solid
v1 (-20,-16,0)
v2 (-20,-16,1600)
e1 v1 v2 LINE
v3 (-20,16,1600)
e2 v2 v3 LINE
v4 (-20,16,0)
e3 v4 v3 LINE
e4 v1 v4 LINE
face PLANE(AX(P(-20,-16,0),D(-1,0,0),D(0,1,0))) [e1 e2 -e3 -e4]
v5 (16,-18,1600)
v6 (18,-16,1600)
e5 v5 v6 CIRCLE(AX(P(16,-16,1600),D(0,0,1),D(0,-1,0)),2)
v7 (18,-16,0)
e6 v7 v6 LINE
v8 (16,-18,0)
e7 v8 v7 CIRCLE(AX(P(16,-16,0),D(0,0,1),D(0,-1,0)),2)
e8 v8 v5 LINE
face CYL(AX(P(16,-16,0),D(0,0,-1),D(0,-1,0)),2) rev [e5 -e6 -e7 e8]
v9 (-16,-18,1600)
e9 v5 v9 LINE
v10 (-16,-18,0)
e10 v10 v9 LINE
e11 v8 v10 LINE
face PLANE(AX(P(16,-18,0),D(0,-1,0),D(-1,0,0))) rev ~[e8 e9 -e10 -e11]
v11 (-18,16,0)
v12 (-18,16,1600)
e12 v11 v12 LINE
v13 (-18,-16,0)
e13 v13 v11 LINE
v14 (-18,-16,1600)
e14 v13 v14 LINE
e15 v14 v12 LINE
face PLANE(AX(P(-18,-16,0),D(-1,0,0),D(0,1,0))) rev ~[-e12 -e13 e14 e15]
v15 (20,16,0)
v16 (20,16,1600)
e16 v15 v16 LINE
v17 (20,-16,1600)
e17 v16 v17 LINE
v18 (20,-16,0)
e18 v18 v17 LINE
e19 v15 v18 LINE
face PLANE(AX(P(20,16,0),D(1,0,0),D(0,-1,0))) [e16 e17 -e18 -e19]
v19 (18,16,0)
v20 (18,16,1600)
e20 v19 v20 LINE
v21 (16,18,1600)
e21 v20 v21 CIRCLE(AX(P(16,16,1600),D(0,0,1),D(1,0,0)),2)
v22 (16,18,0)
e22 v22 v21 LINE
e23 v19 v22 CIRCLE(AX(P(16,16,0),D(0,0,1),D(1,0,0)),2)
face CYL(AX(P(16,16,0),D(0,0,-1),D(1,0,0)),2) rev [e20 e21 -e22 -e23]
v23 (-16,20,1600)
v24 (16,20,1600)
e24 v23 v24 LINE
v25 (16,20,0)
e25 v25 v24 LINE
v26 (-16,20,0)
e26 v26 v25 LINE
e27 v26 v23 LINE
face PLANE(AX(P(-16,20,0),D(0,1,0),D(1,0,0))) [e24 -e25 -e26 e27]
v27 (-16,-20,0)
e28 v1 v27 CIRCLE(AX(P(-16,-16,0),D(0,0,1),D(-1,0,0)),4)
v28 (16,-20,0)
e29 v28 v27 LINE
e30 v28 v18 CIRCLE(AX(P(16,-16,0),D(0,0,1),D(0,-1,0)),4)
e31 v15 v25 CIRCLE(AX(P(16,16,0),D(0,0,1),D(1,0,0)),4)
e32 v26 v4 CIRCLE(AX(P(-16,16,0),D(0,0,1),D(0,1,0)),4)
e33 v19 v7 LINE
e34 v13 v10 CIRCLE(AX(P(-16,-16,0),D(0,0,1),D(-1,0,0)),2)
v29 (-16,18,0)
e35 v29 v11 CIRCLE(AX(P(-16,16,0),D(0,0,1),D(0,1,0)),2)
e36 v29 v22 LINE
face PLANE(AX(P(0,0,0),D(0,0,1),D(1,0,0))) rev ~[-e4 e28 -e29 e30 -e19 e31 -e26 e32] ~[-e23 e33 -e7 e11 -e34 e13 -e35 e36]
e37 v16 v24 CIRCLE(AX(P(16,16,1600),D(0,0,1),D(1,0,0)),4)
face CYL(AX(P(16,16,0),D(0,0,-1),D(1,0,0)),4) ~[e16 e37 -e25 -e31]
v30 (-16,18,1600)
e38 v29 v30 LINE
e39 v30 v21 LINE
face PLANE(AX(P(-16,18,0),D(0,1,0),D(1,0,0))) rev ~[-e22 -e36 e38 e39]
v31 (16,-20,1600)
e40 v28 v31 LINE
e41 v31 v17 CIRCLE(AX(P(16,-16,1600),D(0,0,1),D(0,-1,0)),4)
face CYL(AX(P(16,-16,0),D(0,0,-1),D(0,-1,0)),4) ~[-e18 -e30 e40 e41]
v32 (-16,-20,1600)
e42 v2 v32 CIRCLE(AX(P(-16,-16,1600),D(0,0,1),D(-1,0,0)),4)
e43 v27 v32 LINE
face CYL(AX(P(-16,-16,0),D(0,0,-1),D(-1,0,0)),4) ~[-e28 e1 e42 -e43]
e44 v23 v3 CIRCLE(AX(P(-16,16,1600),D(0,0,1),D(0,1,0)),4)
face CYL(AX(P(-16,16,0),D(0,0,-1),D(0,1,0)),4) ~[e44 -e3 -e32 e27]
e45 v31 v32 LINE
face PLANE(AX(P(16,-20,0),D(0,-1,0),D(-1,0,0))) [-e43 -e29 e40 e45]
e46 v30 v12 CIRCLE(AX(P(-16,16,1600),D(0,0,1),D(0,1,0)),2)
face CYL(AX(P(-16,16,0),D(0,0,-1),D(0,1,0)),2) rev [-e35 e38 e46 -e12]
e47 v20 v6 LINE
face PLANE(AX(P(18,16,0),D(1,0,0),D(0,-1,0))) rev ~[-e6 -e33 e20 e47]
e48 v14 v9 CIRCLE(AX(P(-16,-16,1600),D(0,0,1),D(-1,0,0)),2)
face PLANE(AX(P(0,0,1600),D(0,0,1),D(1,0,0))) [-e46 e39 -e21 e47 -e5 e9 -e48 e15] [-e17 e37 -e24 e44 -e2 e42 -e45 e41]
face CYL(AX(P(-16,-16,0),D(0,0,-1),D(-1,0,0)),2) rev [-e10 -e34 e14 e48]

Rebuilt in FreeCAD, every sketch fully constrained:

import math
import FreeCAD as App
import Part
import Sketcher

V = App.Vector

doc = App.newDocument("Part")
body = doc.addObject("PartDesign::Body", "Body")

sketch1 = doc.addObject("Sketcher::SketchObject", "Sketch")
body.addObject(sketch1)
sketch1.AttachmentSupport = (doc.XY_Plane, [""])
sketch1.MapMode = "FlatFace"
sketch1.addGeometry(Part.LineSegment(V(-20, 16, 0), V(-20, -16, 0)), False)
sketch1.addGeometry(Part.ArcOfCircle(Part.Circle(V(-16, -16, 0), V(0, 0, 1), 4), math.radians(180), math.radians(270)), False)
sketch1.addGeometry(Part.LineSegment(V(-16, -20, 0), V(16, -20, 0)), False)
sketch1.addGeometry(Part.ArcOfCircle(Part.Circle(V(16, -16, 0), V(0, 0, 1), 4), math.radians(-90), math.radians(0)), False)
sketch1.addGeometry(Part.LineSegment(V(20, -16, 0), V(20, 16, 0)), False)
sketch1.addGeometry(Part.ArcOfCircle(Part.Circle(V(16, 16, 0), V(0, 0, 1), 4), math.radians(0), math.radians(90)), False)
sketch1.addGeometry(Part.LineSegment(V(16, 20, 0), V(-16, 20, 0)), False)
sketch1.addGeometry(Part.ArcOfCircle(Part.Circle(V(-16, 16, 0), V(0, 0, 1), 4), math.radians(90), math.radians(180)), False)
sketch1.addGeometry(Part.ArcOfCircle(Part.Circle(V(-16, 16, 0), V(0, 0, 1), 2), math.radians(90), math.radians(180)), False)
sketch1.addGeometry(Part.LineSegment(V(-16, 18, 0), V(16, 18, 0)), False)
sketch1.addGeometry(Part.ArcOfCircle(Part.Circle(V(16, 16, 0), V(0, 0, 1), 2), math.radians(0), math.radians(90)), False)
sketch1.addGeometry(Part.LineSegment(V(18, 16, 0), V(18, -16, 0)), False)
sketch1.addGeometry(Part.ArcOfCircle(Part.Circle(V(16, -16, 0), V(0, 0, 1), 2), math.radians(-90), math.radians(0)), False)
sketch1.addGeometry(Part.LineSegment(V(16, -18, 0), V(-16, -18, 0)), False)
sketch1.addGeometry(Part.ArcOfCircle(Part.Circle(V(-16, -16, 0), V(0, 0, 1), 2), math.radians(180), math.radians(270)), False)
sketch1.addGeometry(Part.LineSegment(V(-18, -16, 0), V(-18, 16, 0)), False)
sketch1.addConstraint(Sketcher.Constraint("Tangent", 0, 2, 1, 1))
sketch1.addConstraint(Sketcher.Constraint("Tangent", 1, 2, 2, 1))
sketch1.addConstraint(Sketcher.Constraint("Tangent", 2, 2, 3, 1))
sketch1.addConstraint(Sketcher.Constraint("Tangent", 3, 2, 4, 1))
sketch1.addConstraint(Sketcher.Constraint("Tangent", 4, 2, 5, 1))
sketch1.addConstraint(Sketcher.Constraint("Tangent", 5, 2, 6, 1))
sketch1.addConstraint(Sketcher.Constraint("Tangent", 6, 2, 7, 1))
sketch1.addConstraint(Sketcher.Constraint("Tangent", 7, 2, 0, 1))
sketch1.addConstraint(Sketcher.Constraint("Tangent", 8, 1, 9, 1))
sketch1.addConstraint(Sketcher.Constraint("Tangent", 9, 2, 10, 2))
sketch1.addConstraint(Sketcher.Constraint("Tangent", 10, 1, 11, 1))
sketch1.addConstraint(Sketcher.Constraint("Tangent", 11, 2, 12, 2))
sketch1.addConstraint(Sketcher.Constraint("Tangent", 12, 1, 13, 1))
sketch1.addConstraint(Sketcher.Constraint("Tangent", 13, 2, 14, 2))
sketch1.addConstraint(Sketcher.Constraint("Tangent", 14, 1, 15, 1))
sketch1.addConstraint(Sketcher.Constraint("Tangent", 15, 2, 8, 2))
sketch1.addConstraint(Sketcher.Constraint("Vertical", 0))
sketch1.addConstraint(Sketcher.Constraint("Horizontal", 2))
sketch1.addConstraint(Sketcher.Constraint("Vertical", 4))
sketch1.addConstraint(Sketcher.Constraint("Horizontal", 6))
sketch1.addConstraint(Sketcher.Constraint("Horizontal", 9))
sketch1.addConstraint(Sketcher.Constraint("Vertical", 11))
sketch1.addConstraint(Sketcher.Constraint("Horizontal", 13))
sketch1.addConstraint(Sketcher.Constraint("Vertical", 15))
sketch1.addConstraint(Sketcher.Constraint("Coincident", 8, 3, 7, 3))
sketch1.addConstraint(Sketcher.Constraint("Coincident", 10, 3, 5, 3))
sketch1.addConstraint(Sketcher.Constraint("Coincident", 12, 3, 3, 3))
sketch1.addConstraint(Sketcher.Constraint("Equal", 1, 3))
sketch1.addConstraint(Sketcher.Constraint("Equal", 3, 5))
sketch1.addConstraint(Sketcher.Constraint("Equal", 5, 7))
sketch1.addConstraint(Sketcher.Constraint("Equal", 12, 14))
sketch1.addConstraint(Sketcher.Constraint("Symmetric", 1, 3, 5, 3, -1, 1))
sketch1.addConstraint(Sketcher.Constraint("Equal", 13, 0))
sketch1.addConstraint(Sketcher.Constraint("Radius", 1, 4.0))
sketch1.addConstraint(Sketcher.Constraint("Radius", 8, 2.0))
sketch1.addConstraint(Sketcher.Constraint("DistanceX", 0, 2, -1, 1, 20.0))
pad1 = doc.addObject("PartDesign::Pad", "Pad")
body.addObject(pad1)
pad1.Profile = sketch1
pad1.Length = 1600

doc.recompute()
